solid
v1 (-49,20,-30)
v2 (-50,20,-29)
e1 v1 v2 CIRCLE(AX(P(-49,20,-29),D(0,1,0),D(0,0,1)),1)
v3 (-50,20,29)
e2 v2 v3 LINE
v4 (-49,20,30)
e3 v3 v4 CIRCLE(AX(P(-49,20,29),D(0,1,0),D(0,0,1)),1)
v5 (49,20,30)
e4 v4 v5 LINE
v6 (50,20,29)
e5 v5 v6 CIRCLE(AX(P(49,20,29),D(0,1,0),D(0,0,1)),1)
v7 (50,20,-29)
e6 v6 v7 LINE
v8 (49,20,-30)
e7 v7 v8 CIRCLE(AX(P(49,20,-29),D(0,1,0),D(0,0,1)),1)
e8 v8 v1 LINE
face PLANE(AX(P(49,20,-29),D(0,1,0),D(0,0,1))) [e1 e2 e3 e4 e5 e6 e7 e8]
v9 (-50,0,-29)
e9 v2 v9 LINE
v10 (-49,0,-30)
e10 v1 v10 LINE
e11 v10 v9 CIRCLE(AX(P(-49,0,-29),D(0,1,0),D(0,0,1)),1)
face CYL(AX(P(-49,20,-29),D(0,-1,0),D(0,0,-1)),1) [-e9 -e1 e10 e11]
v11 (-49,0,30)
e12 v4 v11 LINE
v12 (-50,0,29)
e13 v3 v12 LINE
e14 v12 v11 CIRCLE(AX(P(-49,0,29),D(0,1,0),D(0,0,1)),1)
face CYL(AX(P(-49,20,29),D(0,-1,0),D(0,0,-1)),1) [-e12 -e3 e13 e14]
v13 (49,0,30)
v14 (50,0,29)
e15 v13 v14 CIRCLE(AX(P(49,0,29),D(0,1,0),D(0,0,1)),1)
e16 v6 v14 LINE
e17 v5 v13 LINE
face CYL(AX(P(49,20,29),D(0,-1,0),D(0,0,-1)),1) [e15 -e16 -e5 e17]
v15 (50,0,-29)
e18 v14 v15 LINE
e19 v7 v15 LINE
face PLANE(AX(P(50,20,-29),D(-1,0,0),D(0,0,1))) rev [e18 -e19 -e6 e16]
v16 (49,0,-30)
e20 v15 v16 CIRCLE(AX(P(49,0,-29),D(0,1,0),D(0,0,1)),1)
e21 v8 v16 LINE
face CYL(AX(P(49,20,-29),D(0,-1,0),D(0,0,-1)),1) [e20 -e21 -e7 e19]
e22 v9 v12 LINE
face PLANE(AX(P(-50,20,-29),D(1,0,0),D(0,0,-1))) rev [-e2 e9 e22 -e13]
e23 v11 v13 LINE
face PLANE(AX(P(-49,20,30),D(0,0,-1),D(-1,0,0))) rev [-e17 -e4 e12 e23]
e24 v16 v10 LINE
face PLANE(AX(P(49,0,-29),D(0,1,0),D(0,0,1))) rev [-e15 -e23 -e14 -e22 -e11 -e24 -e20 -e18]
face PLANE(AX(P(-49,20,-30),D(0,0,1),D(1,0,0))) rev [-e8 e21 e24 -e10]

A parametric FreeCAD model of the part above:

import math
import FreeCAD as App
import Part
import Sketcher

V = App.Vector

doc = App.newDocument("Part")
body = doc.addObject("PartDesign::Body", "Body")

sketch1 = body.newObject("Sketcher::SketchObject", "Sketch")
sketch1.AttachmentSupport = (doc.getObject("XZ_Plane"), [""])
sketch1.MapMode = "FlatFace"
sketch1.addGeometry([
    Part.LineSegment(V(49, -30, 0), V(-49, -30, 0)),
    Part.ArcOfCircle(Part.Circle(V(-49, -29, 0), V(0, 0, 1), 1), math.radians(-180), math.radians(-90)),
    Part.LineSegment(V(-50, -29, 0), V(-50, 29, 0)),
    Part.ArcOfCircle(Part.Circle(V(-49, 29, 0), V(0, 0, 1), 1), math.radians(90), math.radians(180)),
    Part.LineSegment(V(-49, 30, 0), V(49, 30, 0)),
    Part.ArcOfCircle(Part.Circle(V(49, 29, 0), V(0, 0, 1), 1), math.radians(0), math.radians(90)),
    Part.LineSegment(V(50, 29, 0), V(50, -29, 0)),
    Part.ArcOfCircle(Part.Circle(V(49, -29, 0), V(0, 0, 1), 1), math.radians(-90), math.radians(0)),
], False)
sketch1.addConstraint([
    Sketcher.Constraint("Tangent", 0, 2, 1, 2),
    Sketcher.Constraint("Tangent", 1, 1, 2, 1),
    Sketcher.Constraint("Tangent", 2, 2, 3, 2),
    Sketcher.Constraint("Tangent", 3, 1, 4, 1),
    Sketcher.Constraint("Tangent", 4, 2, 5, 2),
    Sketcher.Constraint("Tangent", 5, 1, 6, 1),
    Sketcher.Constraint("Tangent", 6, 2, 7, 2),
    Sketcher.Constraint("Tangent", 7, 1, 0, 1),
    Sketcher.Constraint("Horizontal", 0),
    Sketcher.Constraint("Vertical", 2),
    Sketcher.Constraint("Horizontal", 4),
    Sketcher.Constraint("Vertical", 6),
    Sketcher.Constraint("Equal", 1, 3),
    Sketcher.Constraint("Equal", 3, 5),
    Sketcher.Constraint("Equal", 5, 7),
    Sketcher.Constraint("Symmetric", 1, 3, 5, 3, -1, 1),
    Sketcher.Constraint("Radius", 1, 1.0),
    Sketcher.Constraint("DistanceX", 0, 2, 0, 1, 98.0),
    Sketcher.Constraint("DistanceY", 2, 1, 2, 2, 58.0),
])
pad1 = body.newObject("PartDesign::Pad", "Pad")
pad1.Profile = sketch1
pad1.Length = 20
pad1.Reversed = True

doc.recompute()
